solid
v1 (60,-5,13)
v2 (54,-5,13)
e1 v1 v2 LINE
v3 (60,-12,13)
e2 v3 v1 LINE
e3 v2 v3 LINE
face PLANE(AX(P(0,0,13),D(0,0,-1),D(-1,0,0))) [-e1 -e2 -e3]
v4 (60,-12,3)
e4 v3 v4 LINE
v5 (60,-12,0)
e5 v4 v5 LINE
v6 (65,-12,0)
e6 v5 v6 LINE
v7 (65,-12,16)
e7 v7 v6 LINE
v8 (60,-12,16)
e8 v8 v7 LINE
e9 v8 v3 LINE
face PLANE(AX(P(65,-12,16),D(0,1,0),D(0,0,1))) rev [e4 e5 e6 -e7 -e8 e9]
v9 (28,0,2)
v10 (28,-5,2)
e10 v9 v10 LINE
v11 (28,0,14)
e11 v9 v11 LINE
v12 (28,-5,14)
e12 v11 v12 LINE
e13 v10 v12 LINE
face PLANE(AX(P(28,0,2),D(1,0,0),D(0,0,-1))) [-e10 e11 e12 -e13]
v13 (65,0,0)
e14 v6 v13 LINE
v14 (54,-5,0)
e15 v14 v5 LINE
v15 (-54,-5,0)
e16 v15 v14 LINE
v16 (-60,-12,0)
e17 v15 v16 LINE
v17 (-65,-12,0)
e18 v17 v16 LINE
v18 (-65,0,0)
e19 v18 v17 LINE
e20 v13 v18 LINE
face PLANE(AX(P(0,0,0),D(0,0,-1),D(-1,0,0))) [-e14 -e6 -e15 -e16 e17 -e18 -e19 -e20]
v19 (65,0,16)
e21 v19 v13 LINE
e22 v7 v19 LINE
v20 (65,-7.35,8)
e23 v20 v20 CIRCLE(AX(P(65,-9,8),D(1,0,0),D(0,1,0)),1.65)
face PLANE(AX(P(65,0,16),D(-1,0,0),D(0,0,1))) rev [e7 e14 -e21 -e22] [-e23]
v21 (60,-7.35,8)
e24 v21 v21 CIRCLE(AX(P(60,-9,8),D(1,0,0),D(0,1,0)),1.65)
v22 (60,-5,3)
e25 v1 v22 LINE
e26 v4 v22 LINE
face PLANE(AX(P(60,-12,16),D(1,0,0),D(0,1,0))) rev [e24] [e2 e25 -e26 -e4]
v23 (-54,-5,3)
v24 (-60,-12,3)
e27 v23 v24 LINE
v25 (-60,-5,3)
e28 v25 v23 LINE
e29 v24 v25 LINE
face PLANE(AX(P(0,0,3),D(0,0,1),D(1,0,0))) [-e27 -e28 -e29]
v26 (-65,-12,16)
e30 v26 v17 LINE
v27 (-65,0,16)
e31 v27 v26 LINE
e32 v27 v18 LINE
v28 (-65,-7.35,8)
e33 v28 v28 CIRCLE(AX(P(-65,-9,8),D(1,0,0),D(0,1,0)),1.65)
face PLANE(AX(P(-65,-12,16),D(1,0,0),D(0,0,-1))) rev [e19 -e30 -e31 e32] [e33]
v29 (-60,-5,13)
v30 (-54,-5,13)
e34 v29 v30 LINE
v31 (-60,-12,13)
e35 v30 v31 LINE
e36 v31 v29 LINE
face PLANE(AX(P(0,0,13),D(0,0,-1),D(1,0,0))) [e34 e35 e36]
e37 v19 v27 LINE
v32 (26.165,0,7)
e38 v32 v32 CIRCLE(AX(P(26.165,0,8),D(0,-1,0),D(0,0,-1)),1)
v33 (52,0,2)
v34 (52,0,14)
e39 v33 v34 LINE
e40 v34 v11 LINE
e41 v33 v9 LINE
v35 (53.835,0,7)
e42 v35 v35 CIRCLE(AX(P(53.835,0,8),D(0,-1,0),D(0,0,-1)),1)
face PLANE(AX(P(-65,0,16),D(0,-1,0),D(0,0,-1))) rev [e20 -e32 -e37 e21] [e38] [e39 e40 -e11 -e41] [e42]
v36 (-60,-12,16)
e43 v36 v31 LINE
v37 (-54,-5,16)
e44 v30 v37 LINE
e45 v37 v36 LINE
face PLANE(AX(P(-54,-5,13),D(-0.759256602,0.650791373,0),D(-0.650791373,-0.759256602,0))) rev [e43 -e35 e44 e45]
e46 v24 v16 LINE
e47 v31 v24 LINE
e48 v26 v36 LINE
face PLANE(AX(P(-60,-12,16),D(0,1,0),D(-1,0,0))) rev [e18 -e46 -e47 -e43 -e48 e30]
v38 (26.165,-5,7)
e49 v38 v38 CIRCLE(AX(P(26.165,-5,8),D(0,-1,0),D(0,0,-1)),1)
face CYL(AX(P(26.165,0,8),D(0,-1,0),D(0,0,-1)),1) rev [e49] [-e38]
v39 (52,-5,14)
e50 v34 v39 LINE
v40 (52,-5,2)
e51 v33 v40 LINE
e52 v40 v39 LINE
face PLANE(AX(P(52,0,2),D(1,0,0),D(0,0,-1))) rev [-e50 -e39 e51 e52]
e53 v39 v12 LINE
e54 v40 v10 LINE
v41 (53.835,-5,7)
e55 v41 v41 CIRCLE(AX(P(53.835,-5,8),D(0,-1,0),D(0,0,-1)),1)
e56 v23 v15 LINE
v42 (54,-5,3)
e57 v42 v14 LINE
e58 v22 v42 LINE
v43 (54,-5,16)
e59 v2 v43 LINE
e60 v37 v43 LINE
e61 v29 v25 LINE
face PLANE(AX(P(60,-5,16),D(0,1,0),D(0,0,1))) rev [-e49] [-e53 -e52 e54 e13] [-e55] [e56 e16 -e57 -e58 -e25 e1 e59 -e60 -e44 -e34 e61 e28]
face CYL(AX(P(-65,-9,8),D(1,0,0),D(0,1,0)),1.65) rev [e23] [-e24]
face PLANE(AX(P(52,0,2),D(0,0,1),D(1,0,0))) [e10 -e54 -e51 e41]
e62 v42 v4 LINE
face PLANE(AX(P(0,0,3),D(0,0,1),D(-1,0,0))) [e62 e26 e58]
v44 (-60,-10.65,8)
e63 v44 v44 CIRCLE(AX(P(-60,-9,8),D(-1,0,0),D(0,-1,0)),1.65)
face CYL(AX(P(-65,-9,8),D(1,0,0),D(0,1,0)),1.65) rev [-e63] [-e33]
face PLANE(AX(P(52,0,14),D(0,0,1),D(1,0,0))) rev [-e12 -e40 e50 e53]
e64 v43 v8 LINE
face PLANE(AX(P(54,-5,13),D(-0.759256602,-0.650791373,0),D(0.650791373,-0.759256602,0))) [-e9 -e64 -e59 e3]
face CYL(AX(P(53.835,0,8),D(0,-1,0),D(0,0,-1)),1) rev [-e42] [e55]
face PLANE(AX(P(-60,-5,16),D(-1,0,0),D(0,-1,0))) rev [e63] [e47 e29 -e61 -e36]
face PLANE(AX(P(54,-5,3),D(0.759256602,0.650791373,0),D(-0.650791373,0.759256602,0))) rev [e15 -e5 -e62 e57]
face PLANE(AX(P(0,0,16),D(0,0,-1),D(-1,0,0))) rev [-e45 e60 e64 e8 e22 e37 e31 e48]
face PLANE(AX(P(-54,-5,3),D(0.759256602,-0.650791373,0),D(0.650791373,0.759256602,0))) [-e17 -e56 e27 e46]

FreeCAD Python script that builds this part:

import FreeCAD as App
import Part
import Sketcher
Q = App.Units.Quantity


def add_polygon(sketch, points):
    """Adds a closed chain of lines whose ends are joined by coincident constraints."""
    first, n = sketch.GeometryCount, len(points)
    for a, b in zip(points, points[1:] + points[:1]):
        sketch.addGeometry(Part.LineSegment(App.Vector(*a, 0), App.Vector(*b, 0)), False)
    for i in range(n):
        sketch.addConstraint(Sketcher.Constraint("Coincident", first + i, 2, first + (i + 1) % n, 1))

doc = App.newDocument("Part")
body = doc.addObject("PartDesign::Body", "Body")

sketch1 = body.newObject("Sketcher::SketchObject", "Sketch")
sketch1.AttachmentSupport = (doc.getObject("XY_Plane"), [""])
sketch1.MapMode = "FlatFace"
add_polygon(sketch1, [(65, 0), (-65, 0), (-65, -12), (-60, -12), (-60, -5), (60, -5), (60, -12), (65, -12)])
sketch1.addConstraint([
    Sketcher.Constraint("Horizontal", 0),
    Sketcher.Constraint("Vertical", 1),
    Sketcher.Constraint("Horizontal", 2),
    Sketcher.Constraint("Vertical", 3),
    Sketcher.Constraint("Horizontal", 4),
    Sketcher.Constraint("Vertical", 5),
    Sketcher.Constraint("Horizontal", 6),
    Sketcher.Constraint("Vertical", 7),
    Sketcher.Constraint("Symmetric", 0, 2, 7, 2, -1, 1),
    Sketcher.Constraint("Symmetric", 2, 2, 5, 2, -2),
    Sketcher.Constraint("DistanceX", 0, 2, 0, 1, Q("130 mm")),
    Sketcher.Constraint("DistanceX", 2, 1, 2, 2, Q("5 mm")),
    Sketcher.Constraint("DistanceY", 1, 2, 1, 1, Q("12 mm")),
    Sketcher.Constraint("DistanceY", 3, 1, 3, 2, Q("7 mm")),
])
pad1 = body.newObject("PartDesign::Pad", "Pad")
pad1.Profile = sketch1
pad1.Length = 16

sketch2 = body.newObject("Sketcher::SketchObject", "Sketch001")
sketch2.AttachmentSupport = (doc.getObject("YZ_Plane"), [""])
sketch2.MapMode = "FlatFace"
sketch2.AttachmentOffset = App.Placement(App.Vector(0, 0, -60), App.Rotation())
sketch2.addGeometry(Part.Circle(App.Vector(-9, 8, 0), App.Vector(0, 0, 1), 1.65), False)
sketch2.addConstraint([
    Sketcher.Constraint("Diameter", 0, Q("3.3 mm")),
    Sketcher.Constraint("DistanceX", 0, 3, -1, 1, Q("9 mm")),
    Sketcher.Constraint("DistanceY", -1, 1, 0, 3, Q("8 mm")),
])
pocket1 = body.newObject("PartDesign::Pocket", "Pocket")
pocket1.Profile = sketch2
pocket1.Type = "ThroughAll"
pocket1.Midplane = True

sketch3 = body.newObject("Sketcher::SketchObject", "Sketch002")
sketch3.AttachmentSupport = (doc.getObject("XY_Plane"), [""])
sketch3.MapMode = "FlatFace"
add_polygon(sketch3, [(-54, -5), (-60, -12), (-60, -5)])
sketch3.addConstraint([
    Sketcher.Constraint("Vertical", 1),
    Sketcher.Constraint("Horizontal", 2),
    Sketcher.Constraint("DistanceX", 2, 1, 2, 2, Q("6 mm")),
    Sketcher.Constraint("DistanceY", 1, 1, 1, 2, Q("7 mm")),
    Sketcher.Constraint("DistanceX", 0, 2, -1, 1, Q("60 mm")),
    Sketcher.Constraint("DistanceY", 0, 2, -1, 1, Q("12 mm")),
])
pad2 = body.newObject("PartDesign::Pad", "Pad001")
pad2.Profile = sketch3
pad2.Length = 3
doc.recompute()

datumplane = body.newObject("PartDesign::Plane", "DatumPlane")
datumplane.AttachmentSupport = (doc.getObject("XY_Plane"), [""])
datumplane.MapMode = "FlatFace"
datumplane.AttachmentOffset = App.Placement(App.Vector(0, 0, 8), App.Rotation())
mirrored = body.newObject("PartDesign::Mirrored", "Mirrored")
mirrored.Originals = [pad2]
mirrored.MirrorPlane = (datumplane, [""])
body.Tip = mirrored
doc.recompute()

mirrored2 = body.newObject("PartDesign::Mirrored", "Mirrored001")
mirrored2.Originals = [pad2]
mirrored2.MirrorPlane = (doc.getObject("YZ_Plane"), [""])
body.Tip = mirrored2

sketch4 = body.newObject("Sketcher::SketchObject", "Sketch003")
sketch4.AttachmentSupport = (doc.getObject("XY_Plane"), [""])
sketch4.MapMode = "FlatFace"
sketch4.AttachmentOffset = App.Placement(App.Vector(0, 0, 16), App.Rotation())
add_polygon(sketch4, [(54, -5), (60, -12), (60, -5)])
sketch4.addConstraint([
    Sketcher.Constraint("Vertical", 1),
    Sketcher.Constraint("Horizontal", 2),
    Sketcher.Constraint("DistanceX", 2, 2, 2, 1, Q("6 mm")),
    Sketcher.Constraint("DistanceY", 1, 1, 1, 2, Q("7 mm")),
    Sketcher.Constraint("DistanceX", -1, 1, 0, 2, Q("60 mm")),
    Sketcher.Constraint("DistanceY", 0, 2, -1, 1, Q("12 mm")),
])
pad3 = body.newObject("PartDesign::Pad", "Pad002")
pad3.Profile = sketch4
pad3.Length = 3
pad3.Reversed = True

sketch5 = body.newObject("Sketcher::SketchObject", "Sketch004")
sketch5.AttachmentSupport = (doc.getObject("XZ_Plane"), [""])
sketch5.MapMode = "FlatFace"
sketch5.AttachmentOffset = App.Placement(App.Vector(0, 0, 5), App.Rotation())
add_polygon(sketch5, [(28, 14), (28, 2), (52, 2), (52, 14)])
sketch5.addConstraint([
    Sketcher.Constraint("Vertical", 0),
    Sketcher.Constraint("Horizontal", 1),
    Sketcher.Constraint("Vertical", 2),
    Sketcher.Constraint("Horizontal", 3),
    Sketcher.Constraint("DistanceX", 1, 1, 1, 2, Q("24 mm")),
    Sketcher.Constraint("DistanceY", 0, 2, 0, 1, Q("12 mm")),
    Sketcher.Constraint("DistanceX", -1, 1, 0, 2, Q("28 mm")),
    Sketcher.Constraint("DistanceY", -1, 1, 0, 2, Q("2 mm")),
])
pocket2 = body.newObject("PartDesign::Pocket", "Pocket001")
pocket2.Profile = sketch5
pocket2.Length = 5

sketch6 = body.newObject("Sketcher::SketchObject", "Sketch005")
sketch6.AttachmentSupport = (doc.getObject("XZ_Plane"), [""])
sketch6.MapMode = "FlatFace"
sketch6.AttachmentOffset = App.Placement(App.Vector(0, 0, 5), App.Rotation())
sketch6.addGeometry([
    Part.Circle(App.Vector(53.835, 8, 0), App.Vector(0, 0, 1), 1),
    Part.Circle(App.Vector(26.165, 8, 0), App.Vector(0, 0, 1), 1),
], False)
sketch6.addConstraint([
    Sketcher.Constraint("Equal", 0, 1),
    Sketcher.Constraint("Horizontal", 0, 3, 1, 3),
    Sketcher.Constraint("Diameter", 0, Q("2 mm")),
    Sketcher.Constraint("DistanceY", -1, 1, 0, 3, Q("8 mm")),
    Sketcher.Constraint("DistanceX", 1, 3, 0, 3, Q("27.67 mm")),
    Sketcher.Constraint("DistanceX", -1, 1, 0, 3, Q("53.835 mm")),
])
pocket3 = body.newObject("PartDesign::Pocket", "Pocket002")
pocket3.Profile = sketch6
pocket3.Length = 5

doc.recompute()
